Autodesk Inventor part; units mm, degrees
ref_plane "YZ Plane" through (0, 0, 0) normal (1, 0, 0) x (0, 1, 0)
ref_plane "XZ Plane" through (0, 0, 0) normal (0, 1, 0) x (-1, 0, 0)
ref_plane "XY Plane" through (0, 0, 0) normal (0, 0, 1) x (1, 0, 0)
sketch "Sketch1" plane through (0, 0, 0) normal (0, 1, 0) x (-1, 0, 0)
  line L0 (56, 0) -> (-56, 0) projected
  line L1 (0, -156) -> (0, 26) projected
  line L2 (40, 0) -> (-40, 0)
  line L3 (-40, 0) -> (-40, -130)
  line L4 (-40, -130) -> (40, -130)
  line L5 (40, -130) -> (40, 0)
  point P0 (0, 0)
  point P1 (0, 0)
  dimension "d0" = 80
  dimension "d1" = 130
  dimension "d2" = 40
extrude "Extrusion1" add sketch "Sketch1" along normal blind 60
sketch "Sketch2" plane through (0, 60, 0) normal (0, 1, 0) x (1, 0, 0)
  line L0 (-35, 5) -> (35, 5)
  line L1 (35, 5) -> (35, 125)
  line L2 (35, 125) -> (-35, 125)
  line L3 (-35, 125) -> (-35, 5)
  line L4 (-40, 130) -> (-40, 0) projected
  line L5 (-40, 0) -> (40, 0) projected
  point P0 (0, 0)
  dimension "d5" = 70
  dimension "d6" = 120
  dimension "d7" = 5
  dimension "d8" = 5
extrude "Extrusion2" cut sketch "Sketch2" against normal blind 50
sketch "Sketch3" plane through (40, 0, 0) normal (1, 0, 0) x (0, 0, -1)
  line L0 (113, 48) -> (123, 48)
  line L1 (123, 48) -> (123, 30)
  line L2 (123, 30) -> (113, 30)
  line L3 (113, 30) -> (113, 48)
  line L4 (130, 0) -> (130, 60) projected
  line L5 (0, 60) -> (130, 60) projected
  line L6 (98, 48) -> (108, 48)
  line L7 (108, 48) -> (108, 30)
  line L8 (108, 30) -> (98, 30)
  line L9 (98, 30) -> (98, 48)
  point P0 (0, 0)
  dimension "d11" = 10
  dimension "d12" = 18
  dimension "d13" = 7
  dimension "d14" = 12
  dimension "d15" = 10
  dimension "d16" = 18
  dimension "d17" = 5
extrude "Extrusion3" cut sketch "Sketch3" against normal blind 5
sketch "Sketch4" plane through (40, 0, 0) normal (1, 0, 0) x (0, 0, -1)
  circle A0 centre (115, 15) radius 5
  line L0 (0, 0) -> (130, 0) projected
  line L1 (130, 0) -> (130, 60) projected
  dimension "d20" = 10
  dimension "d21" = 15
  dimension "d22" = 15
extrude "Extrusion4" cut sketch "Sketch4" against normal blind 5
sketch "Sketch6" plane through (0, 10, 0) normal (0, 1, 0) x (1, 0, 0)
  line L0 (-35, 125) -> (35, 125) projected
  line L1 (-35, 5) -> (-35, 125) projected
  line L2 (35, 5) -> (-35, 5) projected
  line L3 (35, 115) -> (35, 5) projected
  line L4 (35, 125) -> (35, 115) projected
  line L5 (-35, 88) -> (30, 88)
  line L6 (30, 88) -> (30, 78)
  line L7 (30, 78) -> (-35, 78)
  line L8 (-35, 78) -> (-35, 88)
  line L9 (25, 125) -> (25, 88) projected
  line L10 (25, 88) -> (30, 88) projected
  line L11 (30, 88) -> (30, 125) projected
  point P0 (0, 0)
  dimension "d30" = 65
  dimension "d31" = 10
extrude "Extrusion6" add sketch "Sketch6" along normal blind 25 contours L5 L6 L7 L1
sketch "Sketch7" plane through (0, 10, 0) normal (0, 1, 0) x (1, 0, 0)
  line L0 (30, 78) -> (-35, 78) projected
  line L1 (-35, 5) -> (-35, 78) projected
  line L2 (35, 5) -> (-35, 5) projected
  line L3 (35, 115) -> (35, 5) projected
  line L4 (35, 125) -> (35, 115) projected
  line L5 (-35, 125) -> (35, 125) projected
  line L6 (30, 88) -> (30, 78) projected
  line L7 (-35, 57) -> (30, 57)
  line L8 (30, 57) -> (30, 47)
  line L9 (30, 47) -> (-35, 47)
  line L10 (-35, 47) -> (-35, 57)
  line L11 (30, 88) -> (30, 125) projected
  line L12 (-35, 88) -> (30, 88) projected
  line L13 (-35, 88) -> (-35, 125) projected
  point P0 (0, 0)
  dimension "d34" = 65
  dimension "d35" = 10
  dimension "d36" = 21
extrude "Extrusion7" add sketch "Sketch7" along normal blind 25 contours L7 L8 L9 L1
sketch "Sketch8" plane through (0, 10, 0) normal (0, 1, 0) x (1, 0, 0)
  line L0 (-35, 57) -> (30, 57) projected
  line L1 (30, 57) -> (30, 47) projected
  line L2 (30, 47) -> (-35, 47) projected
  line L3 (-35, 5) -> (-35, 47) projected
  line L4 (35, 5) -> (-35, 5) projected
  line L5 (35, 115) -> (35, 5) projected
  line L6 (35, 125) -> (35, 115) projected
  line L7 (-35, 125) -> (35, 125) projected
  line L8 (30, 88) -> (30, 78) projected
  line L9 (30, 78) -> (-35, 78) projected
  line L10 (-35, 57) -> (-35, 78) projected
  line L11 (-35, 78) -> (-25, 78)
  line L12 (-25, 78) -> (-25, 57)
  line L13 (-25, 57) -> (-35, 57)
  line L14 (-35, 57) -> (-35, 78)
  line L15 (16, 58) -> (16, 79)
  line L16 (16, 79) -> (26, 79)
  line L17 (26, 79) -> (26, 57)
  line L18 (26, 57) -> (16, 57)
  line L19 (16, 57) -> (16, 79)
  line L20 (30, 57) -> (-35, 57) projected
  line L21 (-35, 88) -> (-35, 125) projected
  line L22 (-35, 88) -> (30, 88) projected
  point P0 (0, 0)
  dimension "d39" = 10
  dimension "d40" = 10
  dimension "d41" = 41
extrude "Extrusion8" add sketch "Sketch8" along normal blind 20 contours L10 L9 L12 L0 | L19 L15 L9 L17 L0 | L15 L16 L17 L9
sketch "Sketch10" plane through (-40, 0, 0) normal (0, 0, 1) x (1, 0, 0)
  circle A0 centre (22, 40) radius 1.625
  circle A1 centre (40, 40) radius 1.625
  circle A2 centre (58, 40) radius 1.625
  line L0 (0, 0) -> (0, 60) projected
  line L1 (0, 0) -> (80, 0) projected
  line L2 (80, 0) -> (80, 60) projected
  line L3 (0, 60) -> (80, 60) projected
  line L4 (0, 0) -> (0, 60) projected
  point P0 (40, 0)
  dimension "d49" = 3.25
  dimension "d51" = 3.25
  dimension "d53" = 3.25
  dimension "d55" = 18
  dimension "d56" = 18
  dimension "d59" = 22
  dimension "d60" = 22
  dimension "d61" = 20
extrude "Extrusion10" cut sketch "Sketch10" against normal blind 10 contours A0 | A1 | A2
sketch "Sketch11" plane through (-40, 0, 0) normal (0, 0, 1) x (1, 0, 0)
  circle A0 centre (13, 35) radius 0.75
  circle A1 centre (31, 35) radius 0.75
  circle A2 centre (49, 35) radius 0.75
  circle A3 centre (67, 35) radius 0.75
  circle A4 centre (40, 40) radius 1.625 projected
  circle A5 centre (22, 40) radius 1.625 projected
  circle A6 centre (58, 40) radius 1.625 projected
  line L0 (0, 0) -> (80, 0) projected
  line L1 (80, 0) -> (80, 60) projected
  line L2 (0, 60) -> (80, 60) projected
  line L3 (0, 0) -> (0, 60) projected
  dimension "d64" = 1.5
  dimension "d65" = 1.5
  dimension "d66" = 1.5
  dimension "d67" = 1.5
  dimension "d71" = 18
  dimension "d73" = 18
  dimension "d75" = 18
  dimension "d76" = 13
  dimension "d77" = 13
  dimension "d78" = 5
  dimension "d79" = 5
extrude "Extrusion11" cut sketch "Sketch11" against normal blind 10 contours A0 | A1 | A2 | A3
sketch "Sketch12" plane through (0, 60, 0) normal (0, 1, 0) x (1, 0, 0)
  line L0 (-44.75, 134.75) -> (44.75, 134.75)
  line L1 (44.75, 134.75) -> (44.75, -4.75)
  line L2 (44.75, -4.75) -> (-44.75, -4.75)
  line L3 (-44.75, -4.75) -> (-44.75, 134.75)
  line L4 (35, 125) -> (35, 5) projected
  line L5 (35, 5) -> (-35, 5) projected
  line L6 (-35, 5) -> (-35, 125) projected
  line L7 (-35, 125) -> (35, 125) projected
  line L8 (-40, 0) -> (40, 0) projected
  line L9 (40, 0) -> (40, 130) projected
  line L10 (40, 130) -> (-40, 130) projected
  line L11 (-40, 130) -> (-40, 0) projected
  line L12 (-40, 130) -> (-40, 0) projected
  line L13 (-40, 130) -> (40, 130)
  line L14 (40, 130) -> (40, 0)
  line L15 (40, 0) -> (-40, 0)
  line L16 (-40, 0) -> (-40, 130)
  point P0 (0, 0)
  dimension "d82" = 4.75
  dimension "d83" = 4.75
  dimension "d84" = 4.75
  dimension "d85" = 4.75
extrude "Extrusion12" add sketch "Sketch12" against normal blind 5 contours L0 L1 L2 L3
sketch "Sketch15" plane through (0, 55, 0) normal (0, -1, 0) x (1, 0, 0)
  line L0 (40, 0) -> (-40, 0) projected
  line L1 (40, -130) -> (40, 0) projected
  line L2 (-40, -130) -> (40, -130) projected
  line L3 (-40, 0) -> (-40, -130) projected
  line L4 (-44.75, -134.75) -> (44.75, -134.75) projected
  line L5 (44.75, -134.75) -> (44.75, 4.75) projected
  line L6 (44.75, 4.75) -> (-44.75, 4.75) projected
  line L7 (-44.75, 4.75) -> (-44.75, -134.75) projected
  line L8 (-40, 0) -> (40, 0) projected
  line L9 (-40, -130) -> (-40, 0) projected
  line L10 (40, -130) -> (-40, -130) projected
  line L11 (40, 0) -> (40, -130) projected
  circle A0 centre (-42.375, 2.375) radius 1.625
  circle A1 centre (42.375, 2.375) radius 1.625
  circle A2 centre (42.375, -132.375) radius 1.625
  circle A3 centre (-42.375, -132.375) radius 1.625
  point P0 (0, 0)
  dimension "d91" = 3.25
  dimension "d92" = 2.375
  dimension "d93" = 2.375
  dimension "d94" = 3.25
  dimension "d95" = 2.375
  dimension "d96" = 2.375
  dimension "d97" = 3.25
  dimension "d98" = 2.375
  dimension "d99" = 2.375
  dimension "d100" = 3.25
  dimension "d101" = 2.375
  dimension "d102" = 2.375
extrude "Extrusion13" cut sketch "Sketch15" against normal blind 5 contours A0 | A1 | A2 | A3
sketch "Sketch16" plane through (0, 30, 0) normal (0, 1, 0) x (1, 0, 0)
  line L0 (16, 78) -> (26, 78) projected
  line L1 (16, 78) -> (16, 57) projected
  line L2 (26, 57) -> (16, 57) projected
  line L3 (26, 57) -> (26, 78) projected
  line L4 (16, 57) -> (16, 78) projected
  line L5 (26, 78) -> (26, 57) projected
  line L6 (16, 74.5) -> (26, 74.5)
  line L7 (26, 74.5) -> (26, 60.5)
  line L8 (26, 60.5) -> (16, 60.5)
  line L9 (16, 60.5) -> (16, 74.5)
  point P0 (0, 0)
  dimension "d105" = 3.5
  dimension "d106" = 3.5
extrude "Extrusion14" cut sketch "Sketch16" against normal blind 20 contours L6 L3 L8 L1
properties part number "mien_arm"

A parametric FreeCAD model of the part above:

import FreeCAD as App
import Part
import Sketcher
from FreeCAD import Vector
Q = App.Units.Quantity

doc = App.newDocument("Part")
body = doc.addObject("PartDesign::Body", "Body")

# Sketch on XZ plane
sketch1 = body.newObject("Sketcher::SketchObject", "Sketch")
sketch1.AttachmentSupport = (doc.getObject("XZ_Plane"), [""])
sketch1.MapMode = "FlatFace"
sketch1.addGeometry([
    Part.LineSegment(Vector(-40, -130, 0), Vector(-40, 0, 0)),
    Part.LineSegment(Vector(-40, 0, 0), Vector(40, 0, 0)),
    Part.LineSegment(Vector(40, 0, 0), Vector(40, -130, 0)),
    Part.LineSegment(Vector(40, -130, 0), Vector(-40, -130, 0)),
], False)
sketch1.addConstraint([
    Sketcher.Constraint("Coincident", 0, 2, 1, 1),
    Sketcher.Constraint("Coincident", 1, 2, 2, 1),
    Sketcher.Constraint("Coincident", 2, 2, 3, 1),
    Sketcher.Constraint("Coincident", 3, 2, 0, 1),
    Sketcher.Constraint("Vertical", 0),
    Sketcher.Constraint("Horizontal", 1),
    Sketcher.Constraint("Vertical", 2),
    Sketcher.Constraint("Horizontal", 3),
    Sketcher.Constraint("Symmetric", 0, 2, 1, 2, -1, 1),
    Sketcher.Constraint("DistanceX", 1, 1, 1, 2, Q("80 mm")),
    Sketcher.Constraint("DistanceY", 0, 1, 0, 2, Q("130 mm")),
])
pad1 = body.newObject("PartDesign::Pad", "Pad")
pad1.Profile = sketch1
pad1.Length = 60
pad1.Reversed = True

# Sketch on XZ plane
sketch2 = body.newObject("Sketcher::SketchObject", "Sketch001")
sketch2.AttachmentSupport = (doc.getObject("XZ_Plane"), [""])
sketch2.MapMode = "FlatFace"
sketch2.AttachmentOffset = App.Placement(Vector(0, 0, -60), App.Rotation())
sketch2.addGeometry([
    Part.LineSegment(Vector(-35, -125, 0), Vector(-35, -5, 0)),
    Part.LineSegment(Vector(-35, -5, 0), Vector(35, -5, 0)),
    Part.LineSegment(Vector(35, -5, 0), Vector(35, -125, 0)),
    Part.LineSegment(Vector(35, -125, 0), Vector(-35, -125, 0)),
], False)
sketch2.addConstraint([
    Sketcher.Constraint("Coincident", 0, 2, 1, 1),
    Sketcher.Constraint("Coincident", 1, 2, 2, 1),
    Sketcher.Constraint("Coincident", 2, 2, 3, 1),
    Sketcher.Constraint("Coincident", 3, 2, 0, 1),
    Sketcher.Constraint("Vertical", 0),
    Sketcher.Constraint("Horizontal", 1),
    Sketcher.Constraint("Vertical", 2),
    Sketcher.Constraint("Horizontal", 3),
    Sketcher.Constraint("DistanceX", 1, 1, 1, 2, Q("70 mm")),
    Sketcher.Constraint("DistanceY", 0, 1, 0, 2, Q("120 mm")),
    Sketcher.Constraint("DistanceY", 0, 2, -1, 1, Q("5 mm")),
    Sketcher.Constraint("DistanceX", 0, 2, -1, 1, Q("35 mm")),
])
pocket1 = body.newObject("PartDesign::Pocket", "Pocket")
pocket1.Profile = sketch2
pocket1.Length = 50
pocket1.Reversed = True

# Sketch on YZ plane
sketch3 = body.newObject("Sketcher::SketchObject", "Sketch002")
sketch3.AttachmentSupport = (doc.getObject("YZ_Plane"), [""])
sketch3.MapMode = "FlatFace"
sketch3.AttachmentOffset = App.Placement(Vector(0, 0, 40), App.Rotation())
sketch3.addGeometry([
    Part.LineSegment(Vector(48, -123, 0), Vector(48, -113, 0)),  # 0
    Part.LineSegment(Vector(48, -113, 0), Vector(30, -113, 0)),  # 1
    Part.LineSegment(Vector(30, -113, 0), Vector(30, -123, 0)),  # 2
    Part.LineSegment(Vector(30, -123, 0), Vector(48, -123, 0)),  # 3
    Part.LineSegment(Vector(48, -108, 0), Vector(48, -98, 0)),  # 4
    Part.LineSegment(Vector(48, -98, 0), Vector(30, -98, 0)),  # 5
    Part.LineSegment(Vector(30, -98, 0), Vector(30, -108, 0)),  # 6
    Part.LineSegment(Vector(30, -108, 0), Vector(48, -108, 0)),  # 7
], False)
sketch3.addConstraint([
    Sketcher.Constraint("Coincident", 0, 2, 1, 1),
    Sketcher.Constraint("Coincident", 1, 2, 2, 1),
    Sketcher.Constraint("Coincident", 2, 2, 3, 1),
    Sketcher.Constraint("Coincident", 3, 2, 0, 1),
    Sketcher.Constraint("Coincident", 4, 2, 5, 1),
    Sketcher.Constraint("Coincident", 5, 2, 6, 1),
    Sketcher.Constraint("Coincident", 6, 2, 7, 1),
    Sketcher.Constraint("Coincident", 7, 2, 4, 1),
    Sketcher.Constraint("Vertical", 0),
    Sketcher.Constraint("Horizontal", 1),
    Sketcher.Constraint("Vertical", 2),
    Sketcher.Constraint("Horizontal", 3),
    Sketcher.Constraint("Vertical", 4),
    Sketcher.Constraint("Horizontal", 5),
    Sketcher.Constraint("Vertical", 6),
    Sketcher.Constraint("Horizontal", 7),
    Sketcher.Constraint("Vertical", 3, 2, 4, 2),
    Sketcher.Constraint("Vertical", 2, 2, 5, 2),
    Sketcher.Constraint("Equal", 2, 4),
    Sketcher.Constraint("DistanceX", 1, 2, 1, 1, Q("18 mm")),
    Sketcher.Constraint("DistanceY", 0, 1, 0, 2, Q("10 mm")),
    Sketcher.Constraint("DistanceY", 1, 2, 6, 2, Q("5 mm")),
    Sketcher.Constraint("DistanceX", -1, 1, 0, 2, Q("48 mm")),
    Sketcher.Constraint("DistanceY", 0, 2, -1, 1, Q("113 mm")),
])
pocket2 = body.newObject("PartDesign::Pocket", "Pocket001")
pocket2.Profile = sketch3
pocket2.Length = 5

# Sketch on YZ plane
sketch4 = body.newObject("Sketcher::SketchObject", "Sketch003")
sketch4.AttachmentSupport = (doc.getObject("YZ_Plane"), [""])
sketch4.MapMode = "FlatFace"
sketch4.AttachmentOffset = App.Placement(Vector(0, 0, 40), App.Rotation())
sketch4.addGeometry(Part.Circle(Vector(15, -115, 0), Vector(0, 0, 1), 5), False)
sketch4.addConstraint([
    Sketcher.Constraint("Diameter", 0, Q("10 mm")),
    Sketcher.Constraint("DistanceX", -1, 1, 0, 3, Q("15 mm")),
    Sketcher.Constraint("DistanceY", 0, 3, -1, 1, Q("115 mm")),
])
pocket3 = body.newObject("PartDesign::Pocket", "Pocket002")
pocket3.Profile = sketch4
pocket3.Length = 5

# Sketch on XZ plane
sketch5 = body.newObject("Sketcher::SketchObject", "Sketch004")
sketch5.AttachmentSupport = (doc.getObject("XZ_Plane"), [""])
sketch5.MapMode = "FlatFace"
sketch5.AttachmentOffset = App.Placement(Vector(0, 0, -10), App.Rotation())
sketch5.addGeometry([
    Part.LineSegment(Vector(30, -88, 0), Vector(-35, -88, 0)),
    Part.LineSegment(Vector(-35, -88, 0), Vector(-35, -78, 0)),
    Part.LineSegment(Vector(-35, -78, 0), Vector(30, -78, 0)),
    Part.LineSegment(Vector(30, -78, 0), Vector(30, -88, 0)),
], False)
sketch5.addConstraint([
    Sketcher.Constraint("Coincident", 0, 2, 1, 1),
    Sketcher.Constraint("Coincident", 1, 2, 2, 1),
    Sketcher.Constraint("Coincident", 2, 2, 3, 1),
    Sketcher.Constraint("Coincident", 3, 2, 0, 1),
    Sketcher.Constraint("Horizontal", 0),
    Sketcher.Constraint("Vertical", 1),
    Sketcher.Constraint("Horizontal", 2),
    Sketcher.Constraint("Vertical", 3),
    Sketcher.Constraint("DistanceX", 0, 2, 0, 1, Q("65 mm")),
    Sketcher.Constraint("DistanceY", 1, 1, 1, 2, Q("10 mm")),
    Sketcher.Constraint("DistanceX", 0, 2, -1, 1, Q("35 mm")),
    Sketcher.Constraint("DistanceY", 0, 2, -1, 1, Q("88 mm")),
])
pad2 = body.newObject("PartDesign::Pad", "Pad001")
pad2.Profile = sketch5
pad2.Length = 25
pad2.Reversed = True

# Sketch on XZ plane
sketch6 = body.newObject("Sketcher::SketchObject", "Sketch005")
sketch6.AttachmentSupport = (doc.getObject("XZ_Plane"), [""])
sketch6.MapMode = "FlatFace"
sketch6.AttachmentOffset = App.Placement(Vector(0, 0, -10), App.Rotation())
sketch6.addGeometry([
    Part.LineSegment(Vector(30, -57, 0), Vector(-35, -57, 0)),
    Part.LineSegment(Vector(-35, -57, 0), Vector(-35, -47, 0)),
    Part.LineSegment(Vector(-35, -47, 0), Vector(30, -47, 0)),
    Part.LineSegment(Vector(30, -47, 0), Vector(30, -57, 0)),
], False)
sketch6.addConstraint([
    Sketcher.Constraint("Coincident", 0, 2, 1, 1),
    Sketcher.Constraint("Coincident", 1, 2, 2, 1),
    Sketcher.Constraint("Coincident", 2, 2, 3, 1),
    Sketcher.Constraint("Coincident", 3, 2, 0, 1),
    Sketcher.Constraint("Horizontal", 0),
    Sketcher.Constraint("Vertical", 1),
    Sketcher.Constraint("Horizontal", 2),
    Sketcher.Constraint("Vertical", 3),
    Sketcher.Constraint("DistanceX", 0, 2, 0, 1, Q("65 mm")),
    Sketcher.Constraint("DistanceY", 1, 1, 1, 2, Q("10 mm")),
    Sketcher.Constraint("DistanceX", 0, 2, -1, 1, Q("35 mm")),
    Sketcher.Constraint("DistanceY", 0, 2, -1, 1, Q("57 mm")),
])
pad3 = body.newObject("PartDesign::Pad", "Pad002")
pad3.Profile = sketch6
pad3.Length = 25
pad3.Reversed = True

# Sketch on XZ plane
sketch7 = body.newObject("Sketcher::SketchObject", "Sketch006")
sketch7.AttachmentSupport = (doc.getObject("XZ_Plane"), [""])
sketch7.MapMode = "FlatFace"
sketch7.AttachmentOffset = App.Placement(Vector(0, 0, -10), App.Rotation())
sketch7.addGeometry([
    Part.LineSegment(Vector(-35, -78, 0), Vector(-35, -57, 0)),  # 0
    Part.LineSegment(Vector(-35, -57, 0), Vector(-25, -57, 0)),  # 1
    Part.LineSegment(Vector(-25, -57, 0), Vector(-25, -78, 0)),  # 2
    Part.LineSegment(Vector(-25, -78, 0), Vector(-35, -78, 0)),  # 3
    Part.LineSegment(Vector(16, -57, 0), Vector(26, -57, 0)),  # 4
    Part.LineSegment(Vector(26, -57, 0), Vector(26, -79, 0)),  # 5
    Part.LineSegment(Vector(26, -79, 0), Vector(16, -79, 0)),  # 6
    Part.LineSegment(Vector(16, -79, 0), Vector(16, -57, 0)),  # 7
], False)
sketch7.addConstraint([
    Sketcher.Constraint("Coincident", 0, 2, 1, 1),
    Sketcher.Constraint("Coincident", 1, 2, 2, 1),
    Sketcher.Constraint("Coincident", 2, 2, 3, 1),
    Sketcher.Constraint("Coincident", 3, 2, 0, 1),
    Sketcher.Constraint("Coincident", 4, 2, 5, 1),
    Sketcher.Constraint("Coincident", 5, 2, 6, 1),
    Sketcher.Constraint("Coincident", 6, 2, 7, 1),
    Sketcher.Constraint("Coincident", 7, 2, 4, 1),
    Sketcher.Constraint("Vertical", 0),
    Sketcher.Constraint("Horizontal", 1),
    Sketcher.Constraint("Vertical", 2),
    Sketcher.Constraint("Horizontal", 3),
    Sketcher.Constraint("Horizontal", 4),
    Sketcher.Constraint("Vertical", 5),
    Sketcher.Constraint("Horizontal", 6),
    Sketcher.Constraint("Vertical", 7),
    Sketcher.Constraint("Horizontal", 1, 2, 4, 2),
    Sketcher.Constraint("Equal", 3, 4),
    Sketcher.Constraint("DistanceX", 1, 1, 1, 2, Q("10 mm")),
    Sketcher.Constraint("DistanceX", 2, 2, 6, 2, Q("41 mm")),
    Sketcher.Constraint("DistanceY", 0, 1, 0, 2, Q("21 mm")),
    Sketcher.Constraint("DistanceY", 5, 2, 5, 1, Q("22 mm")),
    Sketcher.Constraint("DistanceX", 0, 2, -1, 1, Q("35 mm")),
    Sketcher.Constraint("DistanceY", 0, 2, -1, 1, Q("57 mm")),
])
pad4 = body.newObject("PartDesign::Pad", "Pad003")
pad4.Profile = sketch7
pad4.Length = 20
pad4.Reversed = True

# Sketch on XY plane
sketch8 = body.newObject("Sketcher::SketchObject", "Sketch007")
sketch8.AttachmentSupport = (doc.getObject("XY_Plane"), [""])
sketch8.MapMode = "FlatFace"
sketch8.addGeometry([
    Part.Circle(Vector(-18, 40, 0), Vector(0, 0, 1), 1.6),
    Part.Circle(Vector(0, 40, 0), Vector(0, 0, 1), 1.6),
    Part.Circle(Vector(18, 40, 0), Vector(0, 0, 1), 1.6),
], False)
sketch8.addConstraint([
    Sketcher.Constraint("Equal", 0, 1),
    Sketcher.Constraint("Equal", 1, 2),
    Sketcher.Constraint("Symmetric", 0, 3, 2, 3, -2),
    Sketcher.Constraint("PointOnObject", 1, 3, -2),
    Sketcher.Constraint("Horizontal", 0, 3, 1, 3),
    Sketcher.Constraint("Diameter", 0, Q("3.25 mm")),
    Sketcher.Constraint("DistanceX", 0, 3, -1, 1, Q("18 mm")),
    Sketcher.Constraint("DistanceY", -1, 1, 0, 3, Q("40 mm")),
])
pocket4 = body.newObject("PartDesign::Pocket", "Pocket003")
pocket4.Profile = sketch8
pocket4.Length = 10

# Sketch on XY plane
sketch9 = body.newObject("Sketcher::SketchObject", "Sketch008")
sketch9.AttachmentSupport = (doc.getObject("XY_Plane"), [""])
sketch9.MapMode = "FlatFace"
sketch9.addGeometry([
    Part.Circle(Vector(-27, 35, 0), Vector(0, 0, 1), 0.8),
    Part.Circle(Vector(-9, 35, 0), Vector(0, 0, 1), 0.8),
    Part.Circle(Vector(9, 35, 0), Vector(0, 0, 1), 0.8),
    Part.Circle(Vector(27, 35, 0), Vector(0, 0, 1), 0.8),
], False)
sketch9.addConstraint([
    Sketcher.Constraint("Equal", 0, 1),
    Sketcher.Constraint("Equal", 1, 2),
    Sketcher.Constraint("Equal", 2, 3),
    Sketcher.Constraint("Symmetric", 1, 3, 2, 3, -2),
    Sketcher.Constraint("Symmetric", 0, 3, 3, 3, -2),
    Sketcher.Constraint("Horizontal", 0, 3, 1, 3),
    Sketcher.Constraint("Diameter", 0, Q("1.5 mm")),
    Sketcher.Constraint("DistanceX", 0, 3, 1, 3, Q("18 mm")),
    Sketcher.Constraint("DistanceX", 1, 3, 2, 3, Q("18 mm")),
    Sketcher.Constraint("DistanceY", -1, 1, 0, 3, Q("35 mm")),
])
pocket5 = body.newObject("PartDesign::Pocket", "Pocket004")
pocket5.Profile = sketch9
pocket5.Length = 10

# Sketch on XZ plane
sketch10 = body.newObject("Sketcher::SketchObject", "Sketch009")
sketch10.AttachmentSupport = (doc.getObject("XZ_Plane"), [""])
sketch10.MapMode = "FlatFace"
sketch10.AttachmentOffset = App.Placement(Vector(0, 0, -60), App.Rotation())
sketch10.addGeometry([
    Part.LineSegment(Vector(45, -135, 0), Vector(-45, -135, 0)),  # 0
    Part.LineSegment(Vector(-45, -135, 0), Vector(-45, 5, 0)),  # 1
    Part.LineSegment(Vector(-45, 5, 0), Vector(45, 5, 0)),  # 2
    Part.LineSegment(Vector(45, 5, 0), Vector(45, -135, 0)),  # 3
    Part.LineSegment(Vector(40, 0, 0), Vector(-40, 0, 0)),  # 4
    Part.LineSegment(Vector(-40, 0, 0), Vector(-40, -130, 0)),  # 5
    Part.LineSegment(Vector(-40, -130, 0), Vector(40, -130, 0)),  # 6
    Part.LineSegment(Vector(40, -130, 0), Vector(40, 0, 0)),  # 7
], False)
sketch10.addConstraint([
    Sketcher.Constraint("Coincident", 0, 2, 1, 1),
    Sketcher.Constraint("Coincident", 1, 2, 2, 1),
    Sketcher.Constraint("Coincident", 2, 2, 3, 1),
    Sketcher.Constraint("Coincident", 3, 2, 0, 1),
    Sketcher.Constraint("Coincident", 4, 2, 5, 1),
    Sketcher.Constraint("Coincident", 5, 2, 6, 1),
    Sketcher.Constraint("Coincident", 6, 2, 7, 1),
    Sketcher.Constraint("Coincident", 7, 2, 4, 1),
    Sketcher.Constraint("Horizontal", 0),
    Sketcher.Constraint("Vertical", 1),
    Sketcher.Constraint("Horizontal", 2),
    Sketcher.Constraint("Vertical", 3),
    Sketcher.Constraint("Horizontal", 4),
    Sketcher.Constraint("Vertical", 5),
    Sketcher.Constraint("Horizontal", 6),
    Sketcher.Constraint("Vertical", 7),
    Sketcher.Constraint("Symmetric", 4, 2, 7, 2, -1, 1),
    Sketcher.Constraint("DistanceX", 4, 2, 4, 1, Q("80 mm")),
    Sketcher.Constraint("DistanceY", 5, 2, 5, 1, Q("130 mm")),
    Sketcher.Constraint("DistanceY", -1, 1, 1, 2, Q("4.75 mm")),
    Sketcher.Constraint("DistanceX", 1, 2, 4, 2, Q("4.75 mm")),
    Sketcher.Constraint("DistanceY", 0, 2, 5, 2, Q("4.75 mm")),
    Sketcher.Constraint("DistanceX", 6, 2, 3, 2, Q("4.75 mm")),
])
pad5 = body.newObject("PartDesign::Pad", "Pad004")
pad5.Profile = sketch10
pad5.Length = 5

# Sketch on XZ plane
sketch11 = body.newObject("Sketcher::SketchObject", "Sketch010")
sketch11.AttachmentSupport = (doc.getObject("XZ_Plane"), [""])
sketch11.MapMode = "FlatFace"
sketch11.AttachmentOffset = App.Placement(Vector(0, 0, -55), App.Rotation())
sketch11.addGeometry([
    Part.Circle(Vector(-42.4, 2.4, 0), Vector(0, 0, 1), 1.6),
    Part.Circle(Vector(42.4, 2.4, 0), Vector(0, 0, 1), 1.6),
    Part.Circle(Vector(42.4, -132.4, 0), Vector(0, 0, 1), 1.6),
    Part.Circle(Vector(-42.4, -132.4, 0), Vector(0, 0, 1), 1.6),
], False)
sketch11.addConstraint([
    Sketcher.Constraint("Equal", 0, 1),
    Sketcher.Constraint("Equal", 1, 2),
    Sketcher.Constraint("Equal", 2, 3),
    Sketcher.Constraint("Symmetric", 0, 3, 1, 3, -2),
    Sketcher.Constraint("Symmetric", 2, 3, 3, 3, -2),
    Sketcher.Constraint("Vertical", 1, 3, 2, 3),
    Sketcher.Constraint("Diameter", 0, Q("3.25 mm")),
    Sketcher.Constraint("DistanceY", -1, 1, 0, 3, Q("2.375 mm")),
    Sketcher.Constraint("DistanceX", 0, 3, 1, 3, Q("84.75 mm")),
    Sketcher.Constraint("DistanceY", 2, 3, 1, 3, Q("134.75 mm")),
])
pocket6 = body.newObject("PartDesign::Pocket", "Pocket005")
pocket6.Profile = sketch11
pocket6.Length = 5

# Sketch on XZ plane
sketch12 = body.newObject("Sketcher::SketchObject", "Sketch011")
sketch12.AttachmentSupport = (doc.getObject("XZ_Plane"), [""])
sketch12.MapMode = "FlatFace"
sketch12.AttachmentOffset = App.Placement(Vector(0, 0, -30), App.Rotation())
sketch12.addGeometry([
    Part.LineSegment(Vector(26, -74, 0), Vector(16, -74, 0)),
    Part.LineSegment(Vector(16, -74, 0), Vector(16, -60, 0)),
    Part.LineSegment(Vector(16, -60, 0), Vector(26, -60, 0)),
    Part.LineSegment(Vector(26, -60, 0), Vector(26, -74, 0)),
], False)
sketch12.addConstraint([
    Sketcher.Constraint("Coincident", 0, 2, 1, 1),
    Sketcher.Constraint("Coincident", 1, 2, 2, 1),
    Sketcher.Constraint("Coincident", 2, 2, 3, 1),
    Sketcher.Constraint("Coincident", 3, 2, 0, 1),
    Sketcher.Constraint("Horizontal", 0),
    Sketcher.Constraint("Vertical", 1),
    Sketcher.Constraint("Horizontal", 2),
    Sketcher.Constraint("Vertical", 3),
    Sketcher.Constraint("DistanceX", 0, 2, 0, 1, Q("10 mm")),
    Sketcher.Constraint("DistanceY", 1, 1, 1, 2, Q("14 mm")),
    Sketcher.Constraint("DistanceX", -1, 1, 0, 2, Q("16 mm")),
    Sketcher.Constraint("DistanceY", 0, 2, -1, 1, Q("74.5 mm")),
])
pocket7 = body.newObject("PartDesign::Pocket", "Pocket006")
pocket7.Profile = sketch12
pocket7.Length = 20
pocket7.Reversed = True

doc.recompute()
